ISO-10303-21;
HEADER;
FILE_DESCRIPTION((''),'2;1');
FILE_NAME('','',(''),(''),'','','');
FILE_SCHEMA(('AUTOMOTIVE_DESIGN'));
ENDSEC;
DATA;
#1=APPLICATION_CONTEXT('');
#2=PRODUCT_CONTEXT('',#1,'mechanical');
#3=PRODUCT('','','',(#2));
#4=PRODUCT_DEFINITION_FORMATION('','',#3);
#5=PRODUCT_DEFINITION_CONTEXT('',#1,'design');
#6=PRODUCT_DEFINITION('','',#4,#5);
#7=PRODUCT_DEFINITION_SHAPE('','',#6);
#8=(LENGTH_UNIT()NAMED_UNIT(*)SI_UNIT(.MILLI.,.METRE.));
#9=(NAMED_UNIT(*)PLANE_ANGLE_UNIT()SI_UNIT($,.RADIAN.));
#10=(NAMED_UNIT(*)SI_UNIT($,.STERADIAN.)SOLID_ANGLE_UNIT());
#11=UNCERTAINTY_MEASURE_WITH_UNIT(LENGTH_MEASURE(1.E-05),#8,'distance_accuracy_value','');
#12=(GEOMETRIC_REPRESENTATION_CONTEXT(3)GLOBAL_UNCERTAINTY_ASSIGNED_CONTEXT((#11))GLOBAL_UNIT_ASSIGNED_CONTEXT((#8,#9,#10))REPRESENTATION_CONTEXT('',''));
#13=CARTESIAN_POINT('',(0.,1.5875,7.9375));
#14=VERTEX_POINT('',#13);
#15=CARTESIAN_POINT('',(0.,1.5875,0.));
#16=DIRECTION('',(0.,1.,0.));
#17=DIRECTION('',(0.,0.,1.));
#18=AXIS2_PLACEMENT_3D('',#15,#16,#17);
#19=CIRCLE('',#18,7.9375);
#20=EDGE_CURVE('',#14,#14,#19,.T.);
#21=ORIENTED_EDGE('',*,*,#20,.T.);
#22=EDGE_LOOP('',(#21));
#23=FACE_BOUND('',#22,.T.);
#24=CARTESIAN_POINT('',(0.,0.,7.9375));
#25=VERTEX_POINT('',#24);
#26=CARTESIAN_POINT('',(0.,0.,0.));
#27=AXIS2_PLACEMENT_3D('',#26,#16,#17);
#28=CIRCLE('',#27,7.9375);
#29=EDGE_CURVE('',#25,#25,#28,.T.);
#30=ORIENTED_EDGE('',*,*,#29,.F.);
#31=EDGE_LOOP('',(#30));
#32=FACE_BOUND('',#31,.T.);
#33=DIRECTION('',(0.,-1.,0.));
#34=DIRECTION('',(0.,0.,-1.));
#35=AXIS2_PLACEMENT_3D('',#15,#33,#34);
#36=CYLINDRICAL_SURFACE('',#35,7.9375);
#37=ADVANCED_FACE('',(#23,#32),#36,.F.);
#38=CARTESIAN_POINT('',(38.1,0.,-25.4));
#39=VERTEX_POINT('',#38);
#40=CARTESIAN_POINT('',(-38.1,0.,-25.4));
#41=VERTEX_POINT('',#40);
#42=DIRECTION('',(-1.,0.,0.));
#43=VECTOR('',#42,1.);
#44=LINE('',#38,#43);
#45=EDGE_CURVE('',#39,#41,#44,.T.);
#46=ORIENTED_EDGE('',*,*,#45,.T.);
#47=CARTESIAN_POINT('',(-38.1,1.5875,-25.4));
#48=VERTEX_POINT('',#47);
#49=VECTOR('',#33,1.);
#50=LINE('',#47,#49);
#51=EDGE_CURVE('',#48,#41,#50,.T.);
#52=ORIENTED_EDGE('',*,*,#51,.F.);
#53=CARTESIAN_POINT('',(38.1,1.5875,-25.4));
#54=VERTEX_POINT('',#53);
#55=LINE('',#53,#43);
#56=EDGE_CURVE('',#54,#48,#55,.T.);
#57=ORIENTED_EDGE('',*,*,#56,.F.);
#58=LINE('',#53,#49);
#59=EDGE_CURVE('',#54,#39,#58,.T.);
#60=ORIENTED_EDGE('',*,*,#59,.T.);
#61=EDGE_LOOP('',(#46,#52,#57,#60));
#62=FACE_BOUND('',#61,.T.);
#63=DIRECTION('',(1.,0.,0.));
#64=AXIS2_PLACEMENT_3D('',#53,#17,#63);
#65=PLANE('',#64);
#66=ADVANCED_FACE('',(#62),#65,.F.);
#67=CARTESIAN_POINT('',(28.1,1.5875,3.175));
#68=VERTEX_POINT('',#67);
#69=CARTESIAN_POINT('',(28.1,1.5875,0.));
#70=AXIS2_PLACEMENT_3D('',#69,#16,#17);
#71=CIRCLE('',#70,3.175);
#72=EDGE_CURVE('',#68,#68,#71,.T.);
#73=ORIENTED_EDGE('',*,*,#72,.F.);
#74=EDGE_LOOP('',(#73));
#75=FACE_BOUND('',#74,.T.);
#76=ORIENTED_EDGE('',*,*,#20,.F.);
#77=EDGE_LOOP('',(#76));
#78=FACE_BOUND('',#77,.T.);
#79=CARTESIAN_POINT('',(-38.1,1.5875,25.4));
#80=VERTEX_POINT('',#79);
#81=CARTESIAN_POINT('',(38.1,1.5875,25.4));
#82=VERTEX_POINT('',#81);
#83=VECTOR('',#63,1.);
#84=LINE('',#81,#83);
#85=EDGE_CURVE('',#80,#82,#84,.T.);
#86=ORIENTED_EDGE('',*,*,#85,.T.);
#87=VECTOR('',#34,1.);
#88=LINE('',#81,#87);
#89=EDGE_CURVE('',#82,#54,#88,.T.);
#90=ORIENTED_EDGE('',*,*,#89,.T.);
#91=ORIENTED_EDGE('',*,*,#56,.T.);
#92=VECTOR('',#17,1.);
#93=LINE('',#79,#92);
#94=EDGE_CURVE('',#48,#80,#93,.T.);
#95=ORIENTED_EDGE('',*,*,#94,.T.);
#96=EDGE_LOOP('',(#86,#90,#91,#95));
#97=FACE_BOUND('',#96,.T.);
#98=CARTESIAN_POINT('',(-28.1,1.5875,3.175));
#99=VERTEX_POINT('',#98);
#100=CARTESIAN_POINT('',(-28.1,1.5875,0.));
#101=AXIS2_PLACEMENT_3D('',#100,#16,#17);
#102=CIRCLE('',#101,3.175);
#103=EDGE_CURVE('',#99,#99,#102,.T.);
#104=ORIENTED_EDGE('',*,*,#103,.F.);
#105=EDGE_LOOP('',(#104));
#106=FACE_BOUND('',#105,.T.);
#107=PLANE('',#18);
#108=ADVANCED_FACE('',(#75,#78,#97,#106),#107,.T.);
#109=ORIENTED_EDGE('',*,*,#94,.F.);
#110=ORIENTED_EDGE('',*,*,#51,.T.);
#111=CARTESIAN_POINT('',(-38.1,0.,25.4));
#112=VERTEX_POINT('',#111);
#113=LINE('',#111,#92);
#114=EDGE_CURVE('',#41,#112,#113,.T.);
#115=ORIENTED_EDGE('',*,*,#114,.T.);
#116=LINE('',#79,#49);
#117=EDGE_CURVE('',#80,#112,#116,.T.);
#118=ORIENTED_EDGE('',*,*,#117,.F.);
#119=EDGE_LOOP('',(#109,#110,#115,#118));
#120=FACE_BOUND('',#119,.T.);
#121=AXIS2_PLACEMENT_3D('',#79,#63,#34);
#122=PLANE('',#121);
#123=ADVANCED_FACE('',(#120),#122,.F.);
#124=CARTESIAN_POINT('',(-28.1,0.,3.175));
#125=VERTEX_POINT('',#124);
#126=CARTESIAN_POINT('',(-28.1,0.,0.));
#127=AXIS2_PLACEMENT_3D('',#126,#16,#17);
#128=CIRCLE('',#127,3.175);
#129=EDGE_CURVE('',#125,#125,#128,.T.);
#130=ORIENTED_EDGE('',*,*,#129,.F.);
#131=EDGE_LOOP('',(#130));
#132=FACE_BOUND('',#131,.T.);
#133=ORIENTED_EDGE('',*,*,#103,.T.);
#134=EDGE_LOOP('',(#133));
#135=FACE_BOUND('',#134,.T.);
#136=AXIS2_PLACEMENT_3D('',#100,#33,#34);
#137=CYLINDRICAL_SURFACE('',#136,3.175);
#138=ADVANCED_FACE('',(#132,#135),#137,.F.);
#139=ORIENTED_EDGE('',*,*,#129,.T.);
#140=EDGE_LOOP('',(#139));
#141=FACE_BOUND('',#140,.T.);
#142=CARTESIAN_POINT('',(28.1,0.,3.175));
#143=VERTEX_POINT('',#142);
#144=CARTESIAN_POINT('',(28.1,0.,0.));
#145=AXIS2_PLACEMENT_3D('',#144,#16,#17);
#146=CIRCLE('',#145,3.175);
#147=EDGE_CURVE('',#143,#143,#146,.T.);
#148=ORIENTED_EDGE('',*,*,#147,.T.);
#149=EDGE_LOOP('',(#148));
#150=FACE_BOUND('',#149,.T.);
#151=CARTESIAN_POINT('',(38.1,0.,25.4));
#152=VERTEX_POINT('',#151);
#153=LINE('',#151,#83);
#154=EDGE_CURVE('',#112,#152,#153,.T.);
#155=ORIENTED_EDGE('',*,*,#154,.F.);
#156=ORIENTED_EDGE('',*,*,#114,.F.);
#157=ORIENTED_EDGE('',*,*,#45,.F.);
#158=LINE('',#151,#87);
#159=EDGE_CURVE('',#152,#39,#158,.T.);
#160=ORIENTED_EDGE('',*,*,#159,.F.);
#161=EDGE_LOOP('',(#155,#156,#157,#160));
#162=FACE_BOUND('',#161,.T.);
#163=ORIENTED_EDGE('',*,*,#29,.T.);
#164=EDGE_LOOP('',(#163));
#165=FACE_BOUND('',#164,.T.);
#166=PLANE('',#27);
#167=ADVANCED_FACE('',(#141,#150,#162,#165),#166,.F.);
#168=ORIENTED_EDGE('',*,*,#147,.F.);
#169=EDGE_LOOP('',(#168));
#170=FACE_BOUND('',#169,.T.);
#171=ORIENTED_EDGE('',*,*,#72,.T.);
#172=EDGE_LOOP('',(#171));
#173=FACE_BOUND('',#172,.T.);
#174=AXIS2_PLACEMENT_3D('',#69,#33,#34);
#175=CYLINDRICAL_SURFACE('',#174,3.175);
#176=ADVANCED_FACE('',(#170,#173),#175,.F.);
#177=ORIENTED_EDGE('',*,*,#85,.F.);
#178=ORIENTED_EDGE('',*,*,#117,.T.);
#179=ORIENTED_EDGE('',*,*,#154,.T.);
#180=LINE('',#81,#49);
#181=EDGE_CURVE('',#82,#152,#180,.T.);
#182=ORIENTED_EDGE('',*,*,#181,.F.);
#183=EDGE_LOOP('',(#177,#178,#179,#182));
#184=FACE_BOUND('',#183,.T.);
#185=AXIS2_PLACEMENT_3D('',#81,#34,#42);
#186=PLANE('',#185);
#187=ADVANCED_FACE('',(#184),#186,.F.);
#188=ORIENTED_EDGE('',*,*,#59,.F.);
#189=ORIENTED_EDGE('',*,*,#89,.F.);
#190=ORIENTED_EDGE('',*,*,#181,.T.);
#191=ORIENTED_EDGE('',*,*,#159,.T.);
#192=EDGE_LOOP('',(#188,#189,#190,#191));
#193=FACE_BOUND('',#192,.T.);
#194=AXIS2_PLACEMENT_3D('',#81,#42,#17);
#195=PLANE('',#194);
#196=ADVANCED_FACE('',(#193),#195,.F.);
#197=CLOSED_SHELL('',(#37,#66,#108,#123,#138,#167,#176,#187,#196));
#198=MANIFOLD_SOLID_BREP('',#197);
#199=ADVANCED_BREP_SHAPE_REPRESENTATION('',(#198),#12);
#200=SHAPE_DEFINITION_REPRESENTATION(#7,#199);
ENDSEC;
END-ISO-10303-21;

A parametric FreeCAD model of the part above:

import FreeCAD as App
import Part
import Sketcher

V = App.Vector
Q = App.Units.Quantity

doc = App.newDocument("Part")
body = doc.addObject("PartDesign::Body", "Body")

# Sketch on XZ plane
sketch1 = body.newObject("Sketcher::SketchObject", "Sketch")
sketch1.AttachmentSupport = (doc.getObject("XZ_Plane"), [""])
sketch1.MapMode = "FlatFace"
sketch1.addGeometry(Part.LineSegment(V(-38.1, -25.4, 0), V(-38.1, 25.4, 0)), False)
sketch1.addGeometry(Part.LineSegment(V(-38.1, 25.4, 0), V(38.1, 25.4, 0)), False)
sketch1.addGeometry(Part.LineSegment(V(38.1, 25.4, 0), V(38.1, -25.4, 0)), False)
sketch1.addGeometry(Part.LineSegment(V(38.1, -25.4, 0), V(-38.1, -25.4, 0)), False)
sketch1.addGeometry(Part.Circle(V(-28.1, 0, 0), V(0, 0, 1), 3.2), False)
sketch1.addGeometry(Part.Circle(V(0, 0, 0), V(0, 0, 1), 7.9), False)
sketch1.addGeometry(Part.Circle(V(28.1, 0, 0), V(0, 0, 1), 3.2), False)
sketch1.addConstraint(Sketcher.Constraint("Coincident", 0, 2, 1, 1))
sketch1.addConstraint(Sketcher.Constraint("Coincident", 1, 2, 2, 1))
sketch1.addConstraint(Sketcher.Constraint("Coincident", 2, 2, 3, 1))
sketch1.addConstraint(Sketcher.Constraint("Coincident", 3, 2, 0, 1))
sketch1.addConstraint(Sketcher.Constraint("Vertical", 0))
sketch1.addConstraint(Sketcher.Constraint("Horizontal", 1))
sketch1.addConstraint(Sketcher.Constraint("Vertical", 2))
sketch1.addConstraint(Sketcher.Constraint("Horizontal", 3))
sketch1.addConstraint(Sketcher.Constraint("Coincident", 5, 3, -1, 1))
sketch1.addConstraint(Sketcher.Constraint("Equal", 4, 6))
sketch1.addConstraint(Sketcher.Constraint("Symmetric", 4, 3, 6, 3, -1, 1))
sketch1.addConstraint(Sketcher.Constraint("Symmetric", 0, 2, 2, 2, -1, 1))
sketch1.addConstraint(Sketcher.Constraint("PointOnObject", 4, 3, -1))
sketch1.addConstraint(Sketcher.Constraint("Diameter", 4, Q("0.25 in")))
sketch1.addConstraint(Sketcher.Constraint("DistanceX", 1, 1, 1, 2, Q("3 in")))
sketch1.addConstraint(Sketcher.Constraint("DistanceY", 0, 1, 0, 2, Q("2 in")))
sketch1.addConstraint(Sketcher.Constraint("Diameter", 5, Q("0.625 in")))
sketch1.addConstraint(Sketcher.Constraint("DistanceX", 4, 3, -1, 1, Q("28.1 mm")))
pad1 = body.newObject("PartDesign::Pad", "Pad")
pad1.Profile = sketch1
pad1.Length = Q("0.0625 in")
pad1.Reversed = True

doc.recompute()
